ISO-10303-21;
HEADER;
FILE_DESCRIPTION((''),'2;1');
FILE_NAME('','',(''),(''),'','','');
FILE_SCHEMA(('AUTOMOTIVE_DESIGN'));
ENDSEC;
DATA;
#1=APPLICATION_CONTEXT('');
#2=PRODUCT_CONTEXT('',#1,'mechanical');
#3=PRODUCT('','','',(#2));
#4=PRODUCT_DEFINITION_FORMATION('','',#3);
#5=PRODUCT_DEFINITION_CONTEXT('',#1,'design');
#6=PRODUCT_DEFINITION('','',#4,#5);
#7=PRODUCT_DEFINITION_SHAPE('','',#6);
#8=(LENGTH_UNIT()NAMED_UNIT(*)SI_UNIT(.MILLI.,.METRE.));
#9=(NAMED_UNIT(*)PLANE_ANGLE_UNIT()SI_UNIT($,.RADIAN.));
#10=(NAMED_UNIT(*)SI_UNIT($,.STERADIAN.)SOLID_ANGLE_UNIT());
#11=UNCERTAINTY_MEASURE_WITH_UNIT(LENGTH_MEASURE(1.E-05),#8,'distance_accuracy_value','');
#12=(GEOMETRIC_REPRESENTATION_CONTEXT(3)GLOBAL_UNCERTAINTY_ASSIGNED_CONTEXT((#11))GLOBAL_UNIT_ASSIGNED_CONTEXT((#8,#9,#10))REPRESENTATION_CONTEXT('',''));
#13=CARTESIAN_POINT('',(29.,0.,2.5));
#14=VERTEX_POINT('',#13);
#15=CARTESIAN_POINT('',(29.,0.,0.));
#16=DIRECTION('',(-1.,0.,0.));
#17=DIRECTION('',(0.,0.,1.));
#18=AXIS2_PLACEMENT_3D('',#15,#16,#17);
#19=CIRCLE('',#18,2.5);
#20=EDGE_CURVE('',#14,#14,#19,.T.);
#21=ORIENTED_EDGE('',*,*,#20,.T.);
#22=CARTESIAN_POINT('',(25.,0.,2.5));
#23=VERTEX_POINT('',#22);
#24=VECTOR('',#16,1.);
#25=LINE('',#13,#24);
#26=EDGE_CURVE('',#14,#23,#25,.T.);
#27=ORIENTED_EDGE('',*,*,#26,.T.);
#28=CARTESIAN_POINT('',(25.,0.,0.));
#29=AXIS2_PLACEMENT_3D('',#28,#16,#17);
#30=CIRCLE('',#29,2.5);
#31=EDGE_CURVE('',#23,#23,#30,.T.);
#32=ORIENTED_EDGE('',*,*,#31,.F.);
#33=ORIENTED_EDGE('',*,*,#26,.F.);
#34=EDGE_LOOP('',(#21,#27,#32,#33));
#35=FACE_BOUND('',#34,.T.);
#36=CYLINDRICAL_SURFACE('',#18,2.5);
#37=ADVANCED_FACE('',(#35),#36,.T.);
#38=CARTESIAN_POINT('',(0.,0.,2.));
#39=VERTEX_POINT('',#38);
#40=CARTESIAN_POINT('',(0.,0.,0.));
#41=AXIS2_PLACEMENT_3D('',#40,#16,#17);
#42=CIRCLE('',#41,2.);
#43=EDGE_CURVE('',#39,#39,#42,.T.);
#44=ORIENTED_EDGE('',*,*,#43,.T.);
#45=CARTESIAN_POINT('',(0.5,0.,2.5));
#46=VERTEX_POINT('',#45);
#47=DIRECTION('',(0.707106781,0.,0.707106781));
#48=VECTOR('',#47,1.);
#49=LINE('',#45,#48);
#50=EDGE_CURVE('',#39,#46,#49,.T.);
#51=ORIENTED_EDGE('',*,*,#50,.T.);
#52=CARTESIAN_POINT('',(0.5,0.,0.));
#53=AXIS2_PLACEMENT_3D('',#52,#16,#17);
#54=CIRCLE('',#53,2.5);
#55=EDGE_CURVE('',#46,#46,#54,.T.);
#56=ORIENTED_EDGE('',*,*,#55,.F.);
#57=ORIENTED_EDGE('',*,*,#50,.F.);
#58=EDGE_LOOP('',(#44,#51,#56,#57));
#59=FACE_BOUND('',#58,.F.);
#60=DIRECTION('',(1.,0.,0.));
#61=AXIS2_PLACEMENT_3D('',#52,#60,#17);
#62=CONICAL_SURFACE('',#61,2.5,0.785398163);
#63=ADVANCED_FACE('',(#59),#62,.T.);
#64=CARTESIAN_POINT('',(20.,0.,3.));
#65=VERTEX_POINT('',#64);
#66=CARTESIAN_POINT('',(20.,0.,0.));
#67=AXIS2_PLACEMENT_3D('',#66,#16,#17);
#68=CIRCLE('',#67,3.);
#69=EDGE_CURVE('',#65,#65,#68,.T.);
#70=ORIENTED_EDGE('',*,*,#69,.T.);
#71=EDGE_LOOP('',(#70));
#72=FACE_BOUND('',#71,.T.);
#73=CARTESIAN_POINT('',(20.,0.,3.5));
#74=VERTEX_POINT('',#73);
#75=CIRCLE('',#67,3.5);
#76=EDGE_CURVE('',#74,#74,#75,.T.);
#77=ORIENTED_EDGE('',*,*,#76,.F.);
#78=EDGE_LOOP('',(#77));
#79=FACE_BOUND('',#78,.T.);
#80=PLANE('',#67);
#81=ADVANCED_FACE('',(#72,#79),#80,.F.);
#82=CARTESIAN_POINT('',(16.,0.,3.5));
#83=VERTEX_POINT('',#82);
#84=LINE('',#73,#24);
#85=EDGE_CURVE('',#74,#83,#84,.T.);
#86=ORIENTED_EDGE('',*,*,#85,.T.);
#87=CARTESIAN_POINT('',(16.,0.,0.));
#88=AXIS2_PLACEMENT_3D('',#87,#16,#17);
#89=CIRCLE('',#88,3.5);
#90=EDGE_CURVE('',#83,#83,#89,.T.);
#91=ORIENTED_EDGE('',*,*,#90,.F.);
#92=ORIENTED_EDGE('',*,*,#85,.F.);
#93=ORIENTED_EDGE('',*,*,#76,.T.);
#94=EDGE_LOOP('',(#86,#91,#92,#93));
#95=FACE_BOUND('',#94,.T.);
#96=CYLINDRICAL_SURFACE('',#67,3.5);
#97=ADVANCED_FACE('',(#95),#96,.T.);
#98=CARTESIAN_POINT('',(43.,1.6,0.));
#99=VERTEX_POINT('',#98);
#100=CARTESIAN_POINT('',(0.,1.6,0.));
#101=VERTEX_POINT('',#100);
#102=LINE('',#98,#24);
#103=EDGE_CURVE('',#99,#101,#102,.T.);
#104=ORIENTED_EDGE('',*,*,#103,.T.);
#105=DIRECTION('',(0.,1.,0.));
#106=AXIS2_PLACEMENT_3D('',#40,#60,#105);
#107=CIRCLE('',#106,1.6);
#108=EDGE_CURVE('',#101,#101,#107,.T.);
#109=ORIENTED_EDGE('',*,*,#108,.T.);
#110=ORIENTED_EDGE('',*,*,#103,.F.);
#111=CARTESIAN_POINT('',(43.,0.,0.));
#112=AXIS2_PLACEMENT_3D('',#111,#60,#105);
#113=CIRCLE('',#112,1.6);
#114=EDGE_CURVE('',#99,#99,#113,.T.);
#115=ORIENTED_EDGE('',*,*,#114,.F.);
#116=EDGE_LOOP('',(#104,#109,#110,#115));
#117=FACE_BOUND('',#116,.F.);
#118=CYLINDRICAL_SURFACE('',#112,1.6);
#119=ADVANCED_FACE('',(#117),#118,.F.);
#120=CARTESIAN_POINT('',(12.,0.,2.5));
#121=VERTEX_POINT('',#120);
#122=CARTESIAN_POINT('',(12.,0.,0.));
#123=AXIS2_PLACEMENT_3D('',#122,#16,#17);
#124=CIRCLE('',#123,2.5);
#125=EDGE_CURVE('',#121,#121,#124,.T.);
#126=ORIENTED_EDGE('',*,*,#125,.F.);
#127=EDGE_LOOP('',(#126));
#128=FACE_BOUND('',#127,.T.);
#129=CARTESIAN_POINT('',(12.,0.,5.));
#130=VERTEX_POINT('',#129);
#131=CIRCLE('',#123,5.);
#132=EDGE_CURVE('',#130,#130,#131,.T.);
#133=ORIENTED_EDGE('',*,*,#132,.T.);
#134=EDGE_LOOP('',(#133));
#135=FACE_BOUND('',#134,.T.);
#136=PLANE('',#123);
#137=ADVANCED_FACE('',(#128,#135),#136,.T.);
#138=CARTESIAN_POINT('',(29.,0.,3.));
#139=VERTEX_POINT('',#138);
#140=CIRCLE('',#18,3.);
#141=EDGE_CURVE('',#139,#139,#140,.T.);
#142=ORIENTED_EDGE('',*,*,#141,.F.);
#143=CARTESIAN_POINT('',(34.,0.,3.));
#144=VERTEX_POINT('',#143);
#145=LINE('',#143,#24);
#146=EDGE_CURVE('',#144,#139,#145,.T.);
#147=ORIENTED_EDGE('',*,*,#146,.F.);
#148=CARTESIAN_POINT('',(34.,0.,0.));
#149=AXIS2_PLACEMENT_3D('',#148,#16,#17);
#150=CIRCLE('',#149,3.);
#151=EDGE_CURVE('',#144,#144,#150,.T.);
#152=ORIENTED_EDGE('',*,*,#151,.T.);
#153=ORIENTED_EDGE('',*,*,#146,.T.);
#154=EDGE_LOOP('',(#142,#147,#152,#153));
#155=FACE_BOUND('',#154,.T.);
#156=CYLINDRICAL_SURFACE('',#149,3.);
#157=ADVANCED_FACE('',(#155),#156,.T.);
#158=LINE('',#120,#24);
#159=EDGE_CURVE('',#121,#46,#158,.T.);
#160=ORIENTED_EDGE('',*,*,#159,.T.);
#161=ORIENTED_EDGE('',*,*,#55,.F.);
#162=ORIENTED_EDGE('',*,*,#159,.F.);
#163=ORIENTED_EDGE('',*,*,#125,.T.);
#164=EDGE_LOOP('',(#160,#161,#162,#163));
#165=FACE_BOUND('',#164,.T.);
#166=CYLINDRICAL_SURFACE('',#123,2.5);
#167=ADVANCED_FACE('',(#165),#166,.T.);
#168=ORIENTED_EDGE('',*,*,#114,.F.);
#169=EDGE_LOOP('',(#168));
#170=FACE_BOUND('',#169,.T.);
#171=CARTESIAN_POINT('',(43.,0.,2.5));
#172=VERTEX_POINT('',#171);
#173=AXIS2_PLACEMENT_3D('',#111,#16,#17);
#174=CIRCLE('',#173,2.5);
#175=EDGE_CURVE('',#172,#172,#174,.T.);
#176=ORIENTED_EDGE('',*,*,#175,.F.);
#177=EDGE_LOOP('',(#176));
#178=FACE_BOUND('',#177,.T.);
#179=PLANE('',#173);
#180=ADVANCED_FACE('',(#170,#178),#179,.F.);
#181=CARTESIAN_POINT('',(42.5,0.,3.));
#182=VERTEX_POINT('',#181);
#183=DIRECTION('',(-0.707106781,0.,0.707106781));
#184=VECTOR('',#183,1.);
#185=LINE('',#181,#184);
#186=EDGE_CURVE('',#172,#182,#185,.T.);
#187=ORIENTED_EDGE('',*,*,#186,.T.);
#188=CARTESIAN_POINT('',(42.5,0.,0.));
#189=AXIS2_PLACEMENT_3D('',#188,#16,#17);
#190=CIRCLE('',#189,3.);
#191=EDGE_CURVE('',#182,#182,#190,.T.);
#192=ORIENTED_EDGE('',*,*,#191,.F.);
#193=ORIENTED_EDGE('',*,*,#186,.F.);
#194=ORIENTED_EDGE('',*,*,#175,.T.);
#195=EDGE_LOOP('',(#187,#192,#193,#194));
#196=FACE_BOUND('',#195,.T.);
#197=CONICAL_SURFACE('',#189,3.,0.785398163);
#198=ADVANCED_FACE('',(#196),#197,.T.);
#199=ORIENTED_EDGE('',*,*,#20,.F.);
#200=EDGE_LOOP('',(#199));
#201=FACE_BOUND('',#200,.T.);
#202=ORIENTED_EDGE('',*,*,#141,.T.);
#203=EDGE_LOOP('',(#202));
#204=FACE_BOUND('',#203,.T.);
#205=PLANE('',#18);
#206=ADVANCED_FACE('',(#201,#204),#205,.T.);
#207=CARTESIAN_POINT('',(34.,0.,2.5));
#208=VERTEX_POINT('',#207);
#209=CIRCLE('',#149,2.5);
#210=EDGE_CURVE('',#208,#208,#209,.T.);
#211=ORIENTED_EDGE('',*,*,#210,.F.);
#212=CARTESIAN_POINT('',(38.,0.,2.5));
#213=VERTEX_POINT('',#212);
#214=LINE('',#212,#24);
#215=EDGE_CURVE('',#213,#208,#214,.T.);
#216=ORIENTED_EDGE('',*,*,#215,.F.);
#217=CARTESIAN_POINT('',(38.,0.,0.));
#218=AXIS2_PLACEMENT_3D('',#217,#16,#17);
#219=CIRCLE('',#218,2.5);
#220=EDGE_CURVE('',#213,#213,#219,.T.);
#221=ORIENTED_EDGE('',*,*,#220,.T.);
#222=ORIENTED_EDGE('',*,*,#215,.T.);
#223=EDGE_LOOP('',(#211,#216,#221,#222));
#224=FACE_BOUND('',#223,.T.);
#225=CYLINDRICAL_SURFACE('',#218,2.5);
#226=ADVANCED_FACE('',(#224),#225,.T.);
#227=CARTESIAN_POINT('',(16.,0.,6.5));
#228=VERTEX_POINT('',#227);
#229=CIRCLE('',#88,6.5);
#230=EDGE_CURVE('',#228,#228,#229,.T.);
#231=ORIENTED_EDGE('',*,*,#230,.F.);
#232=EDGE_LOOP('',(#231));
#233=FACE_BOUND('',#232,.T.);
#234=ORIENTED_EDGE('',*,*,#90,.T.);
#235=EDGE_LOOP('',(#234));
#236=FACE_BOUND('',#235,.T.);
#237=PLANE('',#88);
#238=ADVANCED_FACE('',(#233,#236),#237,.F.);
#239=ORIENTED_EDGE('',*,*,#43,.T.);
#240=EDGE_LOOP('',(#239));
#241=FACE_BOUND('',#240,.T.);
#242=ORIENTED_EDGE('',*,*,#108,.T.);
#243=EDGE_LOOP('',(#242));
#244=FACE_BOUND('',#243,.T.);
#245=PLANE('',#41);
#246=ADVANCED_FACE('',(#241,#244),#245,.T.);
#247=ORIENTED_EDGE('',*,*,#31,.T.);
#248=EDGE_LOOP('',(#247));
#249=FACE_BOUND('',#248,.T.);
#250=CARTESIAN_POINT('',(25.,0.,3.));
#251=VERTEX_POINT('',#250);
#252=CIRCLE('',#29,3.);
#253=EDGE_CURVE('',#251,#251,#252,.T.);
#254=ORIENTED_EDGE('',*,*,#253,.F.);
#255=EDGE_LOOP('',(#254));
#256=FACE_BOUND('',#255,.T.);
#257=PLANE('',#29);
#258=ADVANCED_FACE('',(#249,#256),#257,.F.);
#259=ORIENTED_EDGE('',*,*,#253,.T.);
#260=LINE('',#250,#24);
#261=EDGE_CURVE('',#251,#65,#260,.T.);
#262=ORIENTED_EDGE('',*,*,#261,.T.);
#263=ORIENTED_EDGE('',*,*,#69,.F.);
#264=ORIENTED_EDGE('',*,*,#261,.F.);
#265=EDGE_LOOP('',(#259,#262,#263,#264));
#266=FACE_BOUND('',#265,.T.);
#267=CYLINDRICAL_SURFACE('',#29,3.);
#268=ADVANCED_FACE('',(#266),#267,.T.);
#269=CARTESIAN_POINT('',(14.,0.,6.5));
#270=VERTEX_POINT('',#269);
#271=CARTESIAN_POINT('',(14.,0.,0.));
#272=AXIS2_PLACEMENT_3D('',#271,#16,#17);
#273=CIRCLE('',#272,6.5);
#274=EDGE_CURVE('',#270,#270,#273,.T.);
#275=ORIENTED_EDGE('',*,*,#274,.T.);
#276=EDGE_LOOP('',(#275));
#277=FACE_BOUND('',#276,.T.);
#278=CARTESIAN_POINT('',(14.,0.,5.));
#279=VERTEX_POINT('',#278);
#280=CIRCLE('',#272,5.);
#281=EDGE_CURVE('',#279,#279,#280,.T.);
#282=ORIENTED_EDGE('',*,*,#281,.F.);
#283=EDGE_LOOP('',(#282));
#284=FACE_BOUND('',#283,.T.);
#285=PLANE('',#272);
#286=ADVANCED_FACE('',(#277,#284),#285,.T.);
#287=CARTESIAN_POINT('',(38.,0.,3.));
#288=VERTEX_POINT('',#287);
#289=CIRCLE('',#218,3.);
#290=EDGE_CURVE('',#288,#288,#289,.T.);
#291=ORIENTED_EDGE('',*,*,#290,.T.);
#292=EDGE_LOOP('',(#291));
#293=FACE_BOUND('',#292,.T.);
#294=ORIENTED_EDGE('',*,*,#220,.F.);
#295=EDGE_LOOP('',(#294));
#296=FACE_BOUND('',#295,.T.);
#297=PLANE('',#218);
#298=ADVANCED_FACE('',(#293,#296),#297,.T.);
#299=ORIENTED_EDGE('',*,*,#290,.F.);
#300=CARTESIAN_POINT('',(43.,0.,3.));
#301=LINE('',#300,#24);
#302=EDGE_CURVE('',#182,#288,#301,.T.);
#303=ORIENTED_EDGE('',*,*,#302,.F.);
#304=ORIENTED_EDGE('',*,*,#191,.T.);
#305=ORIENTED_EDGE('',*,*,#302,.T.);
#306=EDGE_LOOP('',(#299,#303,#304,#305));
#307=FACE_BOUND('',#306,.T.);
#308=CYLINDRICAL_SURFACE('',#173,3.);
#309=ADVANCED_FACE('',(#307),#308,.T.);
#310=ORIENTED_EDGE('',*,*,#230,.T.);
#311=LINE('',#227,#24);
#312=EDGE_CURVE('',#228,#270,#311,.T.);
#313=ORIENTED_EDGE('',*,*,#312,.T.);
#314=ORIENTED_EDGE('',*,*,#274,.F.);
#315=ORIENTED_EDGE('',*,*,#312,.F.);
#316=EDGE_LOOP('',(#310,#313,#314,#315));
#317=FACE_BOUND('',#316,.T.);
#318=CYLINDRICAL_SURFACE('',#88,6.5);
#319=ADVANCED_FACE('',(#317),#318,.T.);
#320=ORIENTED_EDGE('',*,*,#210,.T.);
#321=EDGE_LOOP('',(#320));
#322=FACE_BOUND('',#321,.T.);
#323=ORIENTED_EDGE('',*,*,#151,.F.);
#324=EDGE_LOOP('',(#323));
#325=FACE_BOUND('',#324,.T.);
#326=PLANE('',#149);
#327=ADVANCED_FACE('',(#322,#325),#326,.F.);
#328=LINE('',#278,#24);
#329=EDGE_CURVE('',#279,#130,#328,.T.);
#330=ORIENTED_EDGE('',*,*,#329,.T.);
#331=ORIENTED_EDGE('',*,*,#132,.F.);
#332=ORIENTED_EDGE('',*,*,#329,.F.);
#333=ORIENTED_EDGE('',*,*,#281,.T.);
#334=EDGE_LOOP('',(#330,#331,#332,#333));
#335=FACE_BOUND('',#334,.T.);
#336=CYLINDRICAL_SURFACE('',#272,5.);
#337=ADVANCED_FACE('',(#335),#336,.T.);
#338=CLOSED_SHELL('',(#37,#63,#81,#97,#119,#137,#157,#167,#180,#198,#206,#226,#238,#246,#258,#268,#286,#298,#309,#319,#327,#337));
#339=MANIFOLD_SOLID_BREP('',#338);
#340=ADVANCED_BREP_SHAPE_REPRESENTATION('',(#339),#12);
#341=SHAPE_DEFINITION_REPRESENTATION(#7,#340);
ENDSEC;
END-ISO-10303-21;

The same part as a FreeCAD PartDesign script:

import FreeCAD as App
import Part
import Sketcher


def edges_at(feature, points):
    """Names of the edges that pass closest to the given points."""
    edges = feature.Shape.Edges
    near = lambda p: min(range(len(edges)), key=lambda i: edges[i].distToShape(Part.Vertex(*p))[0])
    return sorted({f"Edge{near(p) + 1}" for p in points})

doc = App.newDocument("Part")
body = doc.addObject("PartDesign::Body", "Body")

# Sketch on XZ plane
sketch1 = body.newObject("Sketcher::SketchObject", "Sketch")
sketch1.AttachmentSupport = (doc.getObject("XZ_Plane"), [""])
sketch1.MapMode = "FlatFace"
sketch1.addGeometry([
    Part.LineSegment(App.Vector(0, 2.5, 0), App.Vector(0, 0, 0)),  # 0
    Part.LineSegment(App.Vector(0, 0, 0), App.Vector(43, 0, 0)),  # 1
    Part.LineSegment(App.Vector(43, 0, 0), App.Vector(43, 3, 0)),  # 2
    Part.LineSegment(App.Vector(43, 3, 0), App.Vector(38, 3, 0)),  # 3
    Part.LineSegment(App.Vector(38, 3, 0), App.Vector(38, 2.5, 0)),  # 4
    Part.LineSegment(App.Vector(38, 2.5, 0), App.Vector(34, 2.5, 0)),  # 5
    Part.LineSegment(App.Vector(34, 2.5, 0), App.Vector(34, 3, 0)),  # 6
    Part.LineSegment(App.Vector(34, 3, 0), App.Vector(29, 3, 0)),  # 7
    Part.LineSegment(App.Vector(29, 3, 0), App.Vector(29, 2.5, 0)),  # 8
    Part.LineSegment(App.Vector(29, 2.5, 0), App.Vector(25, 2.5, 0)),  # 9
    Part.LineSegment(App.Vector(25, 2.5, 0), App.Vector(25, 3, 0)),  # 10
    Part.LineSegment(App.Vector(25, 3, 0), App.Vector(20, 3, 0)),  # 11
    Part.LineSegment(App.Vector(20, 3, 0), App.Vector(20, 3.5, 0)),  # 12
    Part.LineSegment(App.Vector(20, 3.5, 0), App.Vector(16, 3.5, 0)),  # 13
    Part.LineSegment(App.Vector(16, 3.5, 0), App.Vector(16, 6.5, 0)),  # 14
    Part.LineSegment(App.Vector(16, 6.5, 0), App.Vector(14, 6.5, 0)),  # 15
    Part.LineSegment(App.Vector(14, 6.5, 0), App.Vector(14, 5, 0)),  # 16
    Part.LineSegment(App.Vector(14, 5, 0), App.Vector(12, 5, 0)),  # 17
    Part.LineSegment(App.Vector(12, 5, 0), App.Vector(12, 2.5, 0)),  # 18
    Part.LineSegment(App.Vector(12, 2.5, 0), App.Vector(0, 2.5, 0)),  # 19
], False)
sketch1.addConstraint([
    Sketcher.Constraint("Coincident", 0, 2, 1, 1),
    Sketcher.Constraint("Coincident", 1, 2, 2, 1),
    Sketcher.Constraint("Coincident", 2, 2, 3, 1),
    Sketcher.Constraint("Coincident", 3, 2, 4, 1),
    Sketcher.Constraint("Coincident", 4, 2, 5, 1),
    Sketcher.Constraint("Coincident", 5, 2, 6, 1),
    Sketcher.Constraint("Coincident", 6, 2, 7, 1),
    Sketcher.Constraint("Coincident", 7, 2, 8, 1),
    Sketcher.Constraint("Coincident", 8, 2, 9, 1),
    Sketcher.Constraint("Coincident", 9, 2, 10, 1),
    Sketcher.Constraint("Coincident", 10, 2, 11, 1),
    Sketcher.Constraint("Coincident", 11, 2, 12, 1),
    Sketcher.Constraint("Coincident", 12, 2, 13, 1),
    Sketcher.Constraint("Coincident", 13, 2, 14, 1),
    Sketcher.Constraint("Coincident", 14, 2, 15, 1),
    Sketcher.Constraint("Coincident", 15, 2, 16, 1),
    Sketcher.Constraint("Coincident", 16, 2, 17, 1),
    Sketcher.Constraint("Coincident", 17, 2, 18, 1),
    Sketcher.Constraint("Coincident", 18, 2, 19, 1),
    Sketcher.Constraint("Coincident", 19, 2, 0, 1),
    Sketcher.Constraint("Vertical", 0),
    Sketcher.Constraint("Horizontal", 1),
    Sketcher.Constraint("Vertical", 2),
    Sketcher.Constraint("Horizontal", 3),
    Sketcher.Constraint("Vertical", 4),
    Sketcher.Constraint("Horizontal", 5),
    Sketcher.Constraint("Vertical", 6),
    Sketcher.Constraint("Horizontal", 7),
    Sketcher.Constraint("Vertical", 8),
    Sketcher.Constraint("Horizontal", 9),
    Sketcher.Constraint("Vertical", 10),
    Sketcher.Constraint("Horizontal", 11),
    Sketcher.Constraint("Vertical", 12),
    Sketcher.Constraint("Horizontal", 13),
    Sketcher.Constraint("Vertical", 14),
    Sketcher.Constraint("Horizontal", 15),
    Sketcher.Constraint("Vertical", 16),
    Sketcher.Constraint("Horizontal", 17),
    Sketcher.Constraint("Vertical", 18),
    Sketcher.Constraint("Horizontal", 19),
    Sketcher.Constraint("Coincident", 0, 2, -1, 1),
    Sketcher.Constraint("Horizontal", 3, 2, 6, 2),
    Sketcher.Constraint("Horizontal", 5, 2, 8, 2),
    Sketcher.Constraint("Horizontal", 7, 2, 10, 2),
    Sketcher.Constraint("Horizontal", 9, 2, 18, 2),
    Sketcher.Constraint("Equal", 3, 7),
    Sketcher.Constraint("Equal", 5, 9),
    Sketcher.Constraint("Equal", 7, 11),
    Sketcher.Constraint("Equal", 9, 13),
    Sketcher.Constraint("Equal", 15, 17),
    Sketcher.Constraint("Equal", 10, 12),
    Sketcher.Constraint("Equal", 2, 14),
    Sketcher.Constraint("Equal", 0, 18),
    Sketcher.Constraint("DistanceX", 1, 1, 1, 2, 43.0),
    Sketcher.Constraint("DistanceX", 3, 2, 3, 1, 5.0),
    Sketcher.Constraint("DistanceX", 5, 2, 5, 1, 4.0),
    Sketcher.Constraint("DistanceX", 15, 2, 15, 1, 2.0),
    Sketcher.Constraint("DistanceY", 2, 1, 2, 2, 3.0),
    Sketcher.Constraint("DistanceY", 0, 2, 0, 1, 2.5),
])
revolution = body.newObject("PartDesign::Revolution", "Revolution")
revolution.Profile = sketch1
revolution.ReferenceAxis = (sketch1, ["H_Axis"])
revolution.Angle = 360

# Sketch on YZ plane
sketch2 = body.newObject("Sketcher::SketchObject", "Sketch001")
sketch2.AttachmentSupport = (doc.getObject("YZ_Plane"), [""])
sketch2.MapMode = "FlatFace"
sketch2.AttachmentOffset = App.Placement(App.Vector(0, 0, 43), App.Rotation())
sketch2.addGeometry(Part.Circle(App.Vector(0, 0, 0), App.Vector(0, 0, 1), 1.6), False)
sketch2.addConstraint([
    Sketcher.Constraint("Coincident", 0, 3, -1, 1),
    Sketcher.Constraint("Diameter", 0, 3.2),
])
pocket1 = body.newObject("PartDesign::Pocket", "Pocket")
pocket1.Profile = sketch2
pocket1.Type = "ThroughAll"
doc.recompute()

chamfer = body.newObject("PartDesign::Chamfer", "Chamfer")
chamfer.Base = (pocket1, edges_at(pocket1, [(43, 0, -3), (0, 0, -2.5)]))
chamfer.Size = 0.5

doc.recompute()
